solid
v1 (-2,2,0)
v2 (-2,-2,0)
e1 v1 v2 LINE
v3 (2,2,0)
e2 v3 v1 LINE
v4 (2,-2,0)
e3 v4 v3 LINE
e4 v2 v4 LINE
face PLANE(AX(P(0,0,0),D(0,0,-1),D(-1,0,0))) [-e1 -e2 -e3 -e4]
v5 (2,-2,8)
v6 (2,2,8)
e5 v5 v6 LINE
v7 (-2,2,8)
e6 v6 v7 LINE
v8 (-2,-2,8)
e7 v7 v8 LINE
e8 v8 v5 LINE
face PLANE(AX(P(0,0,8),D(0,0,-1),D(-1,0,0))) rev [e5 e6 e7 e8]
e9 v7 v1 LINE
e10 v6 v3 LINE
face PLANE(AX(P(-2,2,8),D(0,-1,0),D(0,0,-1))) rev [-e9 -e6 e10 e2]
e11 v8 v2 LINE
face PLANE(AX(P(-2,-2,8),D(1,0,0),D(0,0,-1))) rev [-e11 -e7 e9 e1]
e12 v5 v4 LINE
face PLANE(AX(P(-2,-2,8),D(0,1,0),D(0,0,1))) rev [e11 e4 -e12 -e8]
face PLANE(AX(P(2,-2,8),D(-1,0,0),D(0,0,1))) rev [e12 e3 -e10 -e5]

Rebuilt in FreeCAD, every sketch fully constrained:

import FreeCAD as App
import Part
import Sketcher

V = App.Vector


def add_polygon(sketch, points):
    """Adds a closed chain of lines whose ends are joined by coincident constraints."""
    first, n = sketch.GeometryCount, len(points)
    for a, b in zip(points, points[1:] + points[:1]):
        sketch.addGeometry(Part.LineSegment(App.Vector(*a, 0), App.Vector(*b, 0)), False)
    for i in range(n):
        sketch.addConstraint(Sketcher.Constraint("Coincident", first + i, 2, first + (i + 1) % n, 1))

doc = App.newDocument("Part")
body = doc.addObject("PartDesign::Body", "Body")

# Sketch on XY plane
sketch1 = body.newObject("Sketcher::SketchObject", "Sketch")
sketch1.AttachmentSupport = (doc.getObject("XY_Plane"), [""])
sketch1.MapMode = "FlatFace"
add_polygon(sketch1, [(-2, 2), (-2, -2), (2, -2), (2, 2)])  # lines 0-3
sketch1.addConstraint([
    Sketcher.Constraint("Vertical", 0),
    Sketcher.Constraint("Horizontal", 1),
    Sketcher.Constraint("Vertical", 2),
    Sketcher.Constraint("Horizontal", 3),
    Sketcher.Constraint("Symmetric", 0, 2, 2, 2, -1, 1),
    Sketcher.Constraint("Equal", 3, 0),
    Sketcher.Constraint("DistanceX", 1, 1, 1, 2, 4.0),
])
pad1 = body.newObject("PartDesign::Pad", "Pad")
pad1.Profile = sketch1
pad1.Length = 8

doc.recompute()
